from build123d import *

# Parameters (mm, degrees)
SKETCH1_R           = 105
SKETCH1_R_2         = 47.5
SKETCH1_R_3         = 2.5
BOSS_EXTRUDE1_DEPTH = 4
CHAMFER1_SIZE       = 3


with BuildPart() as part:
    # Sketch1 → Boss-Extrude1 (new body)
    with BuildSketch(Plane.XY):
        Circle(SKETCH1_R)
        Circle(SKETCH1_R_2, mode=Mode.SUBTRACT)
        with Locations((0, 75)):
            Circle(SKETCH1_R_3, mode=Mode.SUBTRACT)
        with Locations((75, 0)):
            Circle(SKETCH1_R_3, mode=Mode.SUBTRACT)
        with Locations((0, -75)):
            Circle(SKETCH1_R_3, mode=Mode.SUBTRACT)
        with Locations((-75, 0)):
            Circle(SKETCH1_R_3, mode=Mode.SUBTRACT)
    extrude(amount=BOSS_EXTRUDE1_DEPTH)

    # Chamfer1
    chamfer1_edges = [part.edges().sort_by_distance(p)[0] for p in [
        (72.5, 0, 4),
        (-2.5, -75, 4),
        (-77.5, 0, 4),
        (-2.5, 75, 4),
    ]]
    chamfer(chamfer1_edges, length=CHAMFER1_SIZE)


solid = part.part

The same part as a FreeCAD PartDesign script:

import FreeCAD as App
import Part
import Sketcher
Q = App.Units.Quantity


def edges_at(feature, points):
    """Names of the edges that pass closest to the given points."""
    edges = feature.Shape.Edges
    near = lambda p: min(range(len(edges)), key=lambda i: edges[i].distToShape(Part.Vertex(*p))[0])
    return sorted({f"Edge{near(p) + 1}" for p in points})

doc = App.newDocument("Part")
body = doc.addObject("PartDesign::Body", "Body")

# Sketch on XY plane
sketch1 = body.newObject("Sketcher::SketchObject", "Sketch")
sketch1.AttachmentSupport = (doc.getObject("XY_Plane"), [""])
sketch1.MapMode = "FlatFace"
sketch1.addGeometry([
    Part.Circle(App.Vector(0, 0, 0), App.Vector(0, 0, 1), 105),  # 0
    Part.Circle(App.Vector(0, -75, 0), App.Vector(0, 0, 1), 2.5),  # 1
    Part.Circle(App.Vector(-75, 0, 0), App.Vector(0, 0, 1), 2.5),  # 2
    Part.Circle(App.Vector(0, 0, 0), App.Vector(0, 0, 1), 47.5),  # 3
    Part.Circle(App.Vector(75, 0, 0), App.Vector(0, 0, 1), 2.5),  # 4
    Part.Circle(App.Vector(0, 75, 0), App.Vector(0, 0, 1), 2.5),  # 5
], False)
sketch1.addConstraint([
    Sketcher.Constraint("Coincident", 0, 3, -1, 1),
    Sketcher.Constraint("Coincident", 3, 3, -1, 1),
    Sketcher.Constraint("Equal", 1, 2),
    Sketcher.Constraint("Equal", 2, 4),
    Sketcher.Constraint("Equal", 4, 5),
    Sketcher.Constraint("Symmetric", 2, 3, 4, 3, -1, 1),
    Sketcher.Constraint("Symmetric", 1, 3, 5, 3, -1, 1),
    Sketcher.Constraint("PointOnObject", 1, 3, -2),
    Sketcher.Constraint("PointOnObject", 2, 3, -1),
    Sketcher.Constraint("Diameter", 0, Q("210 mm")),
    Sketcher.Constraint("Diameter", 1, Q("5 mm")),
    Sketcher.Constraint("Diameter", 3, Q("95 mm")),
    Sketcher.Constraint("DistanceY", 1, 3, -1, 1, Q("75 mm")),
    Sketcher.Constraint("DistanceX", 2, 3, -1, 1, Q("75 mm")),
])
pad1 = body.newObject("PartDesign::Pad", "Pad")
pad1.Profile = sketch1
pad1.Length = 4
doc.recompute()

chamfer = body.newObject("PartDesign::Chamfer", "Chamfer")
chamfer.Base = (pad1, edges_at(pad1, [
    (72.5, 0, 4),
    (-2.5, -75, 4),
    (-77.5, 0, 4),
    (-2.5, 75, 4),
]))
chamfer.Size = 3

doc.recompute()
